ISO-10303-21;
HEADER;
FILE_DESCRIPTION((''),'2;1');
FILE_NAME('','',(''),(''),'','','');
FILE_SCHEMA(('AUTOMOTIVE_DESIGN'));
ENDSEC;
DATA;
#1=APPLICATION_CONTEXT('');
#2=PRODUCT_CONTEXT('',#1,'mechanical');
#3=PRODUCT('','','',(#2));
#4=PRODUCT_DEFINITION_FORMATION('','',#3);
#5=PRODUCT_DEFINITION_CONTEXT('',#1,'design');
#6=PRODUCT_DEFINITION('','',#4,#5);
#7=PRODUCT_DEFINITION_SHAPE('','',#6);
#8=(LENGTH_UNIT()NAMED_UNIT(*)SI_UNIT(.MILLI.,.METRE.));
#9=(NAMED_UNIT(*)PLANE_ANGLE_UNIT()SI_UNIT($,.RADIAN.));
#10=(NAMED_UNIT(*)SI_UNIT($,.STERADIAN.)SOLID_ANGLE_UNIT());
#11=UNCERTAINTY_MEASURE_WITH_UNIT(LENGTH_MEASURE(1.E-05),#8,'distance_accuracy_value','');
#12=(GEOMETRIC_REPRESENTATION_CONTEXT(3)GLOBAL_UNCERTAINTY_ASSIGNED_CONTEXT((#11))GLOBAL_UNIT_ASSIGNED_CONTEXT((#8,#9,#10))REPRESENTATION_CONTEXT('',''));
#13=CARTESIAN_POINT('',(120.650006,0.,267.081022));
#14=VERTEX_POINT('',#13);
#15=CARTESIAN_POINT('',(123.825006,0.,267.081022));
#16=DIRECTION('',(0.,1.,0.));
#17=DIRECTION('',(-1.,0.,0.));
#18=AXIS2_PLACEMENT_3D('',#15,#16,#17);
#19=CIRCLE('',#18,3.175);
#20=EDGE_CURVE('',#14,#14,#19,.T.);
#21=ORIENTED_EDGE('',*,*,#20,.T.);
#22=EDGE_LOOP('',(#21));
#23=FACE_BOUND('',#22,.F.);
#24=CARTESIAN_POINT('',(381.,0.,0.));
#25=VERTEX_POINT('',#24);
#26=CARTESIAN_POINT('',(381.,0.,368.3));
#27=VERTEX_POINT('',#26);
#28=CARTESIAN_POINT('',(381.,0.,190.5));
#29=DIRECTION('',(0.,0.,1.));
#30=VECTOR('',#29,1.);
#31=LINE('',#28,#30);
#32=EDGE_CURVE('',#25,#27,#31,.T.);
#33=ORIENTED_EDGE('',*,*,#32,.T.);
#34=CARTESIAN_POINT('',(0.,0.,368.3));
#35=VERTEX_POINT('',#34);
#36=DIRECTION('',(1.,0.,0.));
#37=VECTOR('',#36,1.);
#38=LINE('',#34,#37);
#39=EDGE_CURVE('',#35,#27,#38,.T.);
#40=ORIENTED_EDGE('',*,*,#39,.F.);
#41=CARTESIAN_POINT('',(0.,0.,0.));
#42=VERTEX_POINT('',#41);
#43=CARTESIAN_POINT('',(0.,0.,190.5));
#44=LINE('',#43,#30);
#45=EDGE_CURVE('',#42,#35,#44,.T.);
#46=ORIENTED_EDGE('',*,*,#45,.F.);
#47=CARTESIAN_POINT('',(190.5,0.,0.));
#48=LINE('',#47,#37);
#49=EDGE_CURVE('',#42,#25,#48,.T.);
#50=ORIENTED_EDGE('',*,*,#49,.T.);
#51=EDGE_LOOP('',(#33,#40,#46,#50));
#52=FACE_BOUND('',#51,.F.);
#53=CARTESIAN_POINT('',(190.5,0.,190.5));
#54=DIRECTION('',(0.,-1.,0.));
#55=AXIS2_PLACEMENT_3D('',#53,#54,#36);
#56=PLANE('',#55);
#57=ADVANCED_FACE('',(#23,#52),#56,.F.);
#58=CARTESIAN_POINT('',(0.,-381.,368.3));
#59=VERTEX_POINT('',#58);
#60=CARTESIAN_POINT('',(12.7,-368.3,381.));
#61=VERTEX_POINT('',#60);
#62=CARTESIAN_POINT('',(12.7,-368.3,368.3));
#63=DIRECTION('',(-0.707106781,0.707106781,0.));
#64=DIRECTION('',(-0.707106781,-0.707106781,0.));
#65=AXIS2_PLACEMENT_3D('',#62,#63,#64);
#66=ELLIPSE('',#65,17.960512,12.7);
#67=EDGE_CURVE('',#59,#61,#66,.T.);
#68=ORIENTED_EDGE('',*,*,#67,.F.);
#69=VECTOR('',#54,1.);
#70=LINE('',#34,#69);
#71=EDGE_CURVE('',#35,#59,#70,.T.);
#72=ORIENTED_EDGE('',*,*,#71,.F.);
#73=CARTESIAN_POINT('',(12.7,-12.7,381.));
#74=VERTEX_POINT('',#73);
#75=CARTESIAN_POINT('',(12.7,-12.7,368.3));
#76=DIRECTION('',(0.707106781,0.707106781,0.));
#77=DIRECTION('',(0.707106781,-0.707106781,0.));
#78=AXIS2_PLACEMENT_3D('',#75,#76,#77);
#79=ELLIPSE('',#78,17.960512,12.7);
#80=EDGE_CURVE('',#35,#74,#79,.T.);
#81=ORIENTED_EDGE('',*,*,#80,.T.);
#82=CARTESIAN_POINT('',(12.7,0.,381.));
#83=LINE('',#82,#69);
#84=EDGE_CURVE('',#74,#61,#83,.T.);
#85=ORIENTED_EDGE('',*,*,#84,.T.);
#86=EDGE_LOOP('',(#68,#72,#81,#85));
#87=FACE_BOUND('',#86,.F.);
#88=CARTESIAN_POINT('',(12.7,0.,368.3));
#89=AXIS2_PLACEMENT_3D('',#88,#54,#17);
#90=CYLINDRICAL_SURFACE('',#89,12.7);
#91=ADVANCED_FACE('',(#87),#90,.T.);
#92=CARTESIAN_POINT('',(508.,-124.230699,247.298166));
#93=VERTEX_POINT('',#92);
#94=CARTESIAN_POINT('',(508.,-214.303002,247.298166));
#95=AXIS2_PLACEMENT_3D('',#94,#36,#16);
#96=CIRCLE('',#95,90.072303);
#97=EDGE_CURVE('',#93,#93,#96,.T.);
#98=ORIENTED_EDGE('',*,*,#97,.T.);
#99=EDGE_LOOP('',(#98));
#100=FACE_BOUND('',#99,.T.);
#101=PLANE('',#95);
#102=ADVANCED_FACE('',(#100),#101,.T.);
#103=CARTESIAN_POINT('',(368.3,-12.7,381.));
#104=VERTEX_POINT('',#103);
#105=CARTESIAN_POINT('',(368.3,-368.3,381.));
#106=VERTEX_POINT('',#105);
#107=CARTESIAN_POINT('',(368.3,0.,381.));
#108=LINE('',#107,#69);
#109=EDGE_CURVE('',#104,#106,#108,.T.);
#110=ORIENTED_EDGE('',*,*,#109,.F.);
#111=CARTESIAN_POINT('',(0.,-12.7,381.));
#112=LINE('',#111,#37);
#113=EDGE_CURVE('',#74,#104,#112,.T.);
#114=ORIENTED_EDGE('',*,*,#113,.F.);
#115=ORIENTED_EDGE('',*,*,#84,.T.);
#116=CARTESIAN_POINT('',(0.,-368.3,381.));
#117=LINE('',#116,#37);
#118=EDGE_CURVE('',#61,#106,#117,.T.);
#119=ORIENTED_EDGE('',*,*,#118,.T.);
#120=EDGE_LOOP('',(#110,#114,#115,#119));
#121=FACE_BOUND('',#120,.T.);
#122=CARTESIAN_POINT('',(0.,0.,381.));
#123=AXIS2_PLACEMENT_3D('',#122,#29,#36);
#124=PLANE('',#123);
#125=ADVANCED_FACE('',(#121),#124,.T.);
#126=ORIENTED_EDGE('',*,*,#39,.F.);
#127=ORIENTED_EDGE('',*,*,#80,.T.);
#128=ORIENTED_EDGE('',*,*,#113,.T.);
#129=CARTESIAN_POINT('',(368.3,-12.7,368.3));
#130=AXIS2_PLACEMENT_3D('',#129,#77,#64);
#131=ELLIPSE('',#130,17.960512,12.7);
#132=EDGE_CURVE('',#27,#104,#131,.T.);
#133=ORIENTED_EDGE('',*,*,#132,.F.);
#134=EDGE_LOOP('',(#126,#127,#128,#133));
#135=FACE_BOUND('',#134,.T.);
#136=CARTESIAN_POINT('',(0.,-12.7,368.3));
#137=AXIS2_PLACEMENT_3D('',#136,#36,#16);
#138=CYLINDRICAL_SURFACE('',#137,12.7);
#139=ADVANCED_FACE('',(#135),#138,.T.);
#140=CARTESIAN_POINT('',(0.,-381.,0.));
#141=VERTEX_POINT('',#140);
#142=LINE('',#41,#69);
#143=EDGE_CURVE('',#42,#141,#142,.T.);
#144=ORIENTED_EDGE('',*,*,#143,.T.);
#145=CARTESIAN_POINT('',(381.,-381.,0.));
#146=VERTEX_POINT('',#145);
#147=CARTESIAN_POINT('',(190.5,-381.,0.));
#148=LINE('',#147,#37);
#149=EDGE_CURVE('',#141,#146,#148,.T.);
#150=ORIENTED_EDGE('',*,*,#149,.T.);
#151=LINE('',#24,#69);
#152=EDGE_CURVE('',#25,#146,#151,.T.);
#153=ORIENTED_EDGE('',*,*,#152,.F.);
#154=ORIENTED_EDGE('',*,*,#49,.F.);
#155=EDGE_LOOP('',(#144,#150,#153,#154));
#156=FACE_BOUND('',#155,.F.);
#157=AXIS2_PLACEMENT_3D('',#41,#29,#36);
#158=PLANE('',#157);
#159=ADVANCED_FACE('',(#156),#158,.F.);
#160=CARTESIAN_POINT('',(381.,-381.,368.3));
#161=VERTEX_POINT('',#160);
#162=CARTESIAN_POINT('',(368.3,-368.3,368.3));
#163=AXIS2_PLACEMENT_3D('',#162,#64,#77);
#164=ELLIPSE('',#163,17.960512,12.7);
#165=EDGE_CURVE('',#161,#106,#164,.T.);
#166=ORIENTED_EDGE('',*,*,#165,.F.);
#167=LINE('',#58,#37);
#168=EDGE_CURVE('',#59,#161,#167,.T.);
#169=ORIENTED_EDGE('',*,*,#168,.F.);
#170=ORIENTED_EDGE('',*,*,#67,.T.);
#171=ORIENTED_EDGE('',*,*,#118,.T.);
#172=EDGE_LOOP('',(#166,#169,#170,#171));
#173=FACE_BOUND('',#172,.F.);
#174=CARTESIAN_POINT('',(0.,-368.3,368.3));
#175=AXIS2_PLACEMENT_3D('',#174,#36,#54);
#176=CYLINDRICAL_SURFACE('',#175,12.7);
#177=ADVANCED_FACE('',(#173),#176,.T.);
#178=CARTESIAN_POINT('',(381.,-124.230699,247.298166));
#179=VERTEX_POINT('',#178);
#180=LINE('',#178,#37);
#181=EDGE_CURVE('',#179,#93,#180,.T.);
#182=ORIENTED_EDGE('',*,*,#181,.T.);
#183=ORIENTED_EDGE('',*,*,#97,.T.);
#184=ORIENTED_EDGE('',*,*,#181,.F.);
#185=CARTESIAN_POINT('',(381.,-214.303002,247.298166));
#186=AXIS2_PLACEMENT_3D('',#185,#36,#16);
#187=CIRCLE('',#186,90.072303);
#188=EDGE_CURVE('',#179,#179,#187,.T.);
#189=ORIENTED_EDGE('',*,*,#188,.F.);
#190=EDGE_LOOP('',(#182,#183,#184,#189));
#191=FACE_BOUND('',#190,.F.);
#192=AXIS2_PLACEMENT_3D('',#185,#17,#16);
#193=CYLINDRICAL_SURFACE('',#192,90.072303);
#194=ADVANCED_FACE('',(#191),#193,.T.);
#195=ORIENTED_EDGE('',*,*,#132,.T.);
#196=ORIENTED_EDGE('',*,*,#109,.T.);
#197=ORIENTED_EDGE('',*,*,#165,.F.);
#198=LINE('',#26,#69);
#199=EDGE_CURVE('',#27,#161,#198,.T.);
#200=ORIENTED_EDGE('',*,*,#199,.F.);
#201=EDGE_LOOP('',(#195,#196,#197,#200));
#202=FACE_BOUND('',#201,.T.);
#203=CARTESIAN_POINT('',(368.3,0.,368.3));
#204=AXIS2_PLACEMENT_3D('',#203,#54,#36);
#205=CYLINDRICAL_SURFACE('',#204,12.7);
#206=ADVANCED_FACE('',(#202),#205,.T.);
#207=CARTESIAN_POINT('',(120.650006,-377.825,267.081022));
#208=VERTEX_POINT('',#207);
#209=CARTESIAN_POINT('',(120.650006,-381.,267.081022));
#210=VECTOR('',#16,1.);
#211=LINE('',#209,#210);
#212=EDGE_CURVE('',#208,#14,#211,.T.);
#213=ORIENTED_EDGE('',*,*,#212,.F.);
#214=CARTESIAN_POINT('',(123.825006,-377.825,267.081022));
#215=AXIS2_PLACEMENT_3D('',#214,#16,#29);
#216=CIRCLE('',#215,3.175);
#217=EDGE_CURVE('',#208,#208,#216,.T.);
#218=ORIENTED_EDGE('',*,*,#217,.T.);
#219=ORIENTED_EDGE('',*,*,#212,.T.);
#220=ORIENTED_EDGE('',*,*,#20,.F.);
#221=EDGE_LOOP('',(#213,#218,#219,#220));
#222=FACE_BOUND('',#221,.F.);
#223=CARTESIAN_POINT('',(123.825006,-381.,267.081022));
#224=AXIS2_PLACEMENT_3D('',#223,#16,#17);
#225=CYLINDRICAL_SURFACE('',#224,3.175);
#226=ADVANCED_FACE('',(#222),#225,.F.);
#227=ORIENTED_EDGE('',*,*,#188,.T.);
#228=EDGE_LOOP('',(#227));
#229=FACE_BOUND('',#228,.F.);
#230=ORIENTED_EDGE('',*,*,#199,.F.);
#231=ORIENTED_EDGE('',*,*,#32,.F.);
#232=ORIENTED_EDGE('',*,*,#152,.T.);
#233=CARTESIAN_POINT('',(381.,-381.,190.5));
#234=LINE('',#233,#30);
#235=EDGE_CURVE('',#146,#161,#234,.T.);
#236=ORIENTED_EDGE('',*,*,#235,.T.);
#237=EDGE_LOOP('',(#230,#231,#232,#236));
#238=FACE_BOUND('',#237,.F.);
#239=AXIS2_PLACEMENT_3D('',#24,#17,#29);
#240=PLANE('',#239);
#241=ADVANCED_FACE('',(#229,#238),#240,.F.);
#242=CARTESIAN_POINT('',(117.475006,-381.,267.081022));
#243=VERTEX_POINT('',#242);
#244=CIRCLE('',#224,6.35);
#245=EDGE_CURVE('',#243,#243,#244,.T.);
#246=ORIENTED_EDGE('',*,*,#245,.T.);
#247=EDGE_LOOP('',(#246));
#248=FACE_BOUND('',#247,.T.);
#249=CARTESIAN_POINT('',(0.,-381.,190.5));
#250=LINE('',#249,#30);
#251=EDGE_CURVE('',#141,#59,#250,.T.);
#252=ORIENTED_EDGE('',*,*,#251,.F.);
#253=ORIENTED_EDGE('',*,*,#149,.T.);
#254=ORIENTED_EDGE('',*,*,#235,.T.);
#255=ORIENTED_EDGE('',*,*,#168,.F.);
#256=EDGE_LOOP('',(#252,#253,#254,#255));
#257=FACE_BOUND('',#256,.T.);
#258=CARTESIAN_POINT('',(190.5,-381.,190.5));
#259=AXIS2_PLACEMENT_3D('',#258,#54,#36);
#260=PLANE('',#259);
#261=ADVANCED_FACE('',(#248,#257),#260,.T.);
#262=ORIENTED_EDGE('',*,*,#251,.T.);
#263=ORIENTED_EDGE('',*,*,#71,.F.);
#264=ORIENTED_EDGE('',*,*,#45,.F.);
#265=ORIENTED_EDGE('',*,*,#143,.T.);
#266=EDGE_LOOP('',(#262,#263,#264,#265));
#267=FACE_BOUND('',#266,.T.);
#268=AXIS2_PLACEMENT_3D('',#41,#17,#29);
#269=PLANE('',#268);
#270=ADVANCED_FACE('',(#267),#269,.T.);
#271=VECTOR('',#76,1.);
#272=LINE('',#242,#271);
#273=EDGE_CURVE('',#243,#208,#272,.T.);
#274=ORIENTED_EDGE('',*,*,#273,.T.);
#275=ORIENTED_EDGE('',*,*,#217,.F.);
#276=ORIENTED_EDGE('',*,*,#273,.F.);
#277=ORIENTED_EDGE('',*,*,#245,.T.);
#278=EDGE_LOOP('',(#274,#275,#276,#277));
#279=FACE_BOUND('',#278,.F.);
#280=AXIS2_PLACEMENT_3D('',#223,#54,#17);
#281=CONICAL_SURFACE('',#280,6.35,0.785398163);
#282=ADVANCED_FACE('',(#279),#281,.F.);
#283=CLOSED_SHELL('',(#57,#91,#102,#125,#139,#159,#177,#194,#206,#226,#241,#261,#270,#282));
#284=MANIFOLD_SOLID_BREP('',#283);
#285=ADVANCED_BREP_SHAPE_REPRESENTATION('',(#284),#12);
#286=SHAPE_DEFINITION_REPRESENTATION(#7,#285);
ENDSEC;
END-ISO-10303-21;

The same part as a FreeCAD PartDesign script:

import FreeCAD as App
import Part
import Sketcher

V = App.Vector
Q = App.Units.Quantity


def edges_at(feature, points):
    """Names of the edges that pass closest to the given points."""
    edges = feature.Shape.Edges
    near = lambda p: min(range(len(edges)), key=lambda i: edges[i].distToShape(Part.Vertex(*p))[0])
    return sorted({f"Edge{near(p) + 1}" for p in points})

doc = App.newDocument("Part")
params = doc.addObject("Spreadsheet::Sheet", "Params")
for row, (alias, value) in enumerate([
    ("sketch1_width", "15 in"),
    ("pad1_length", "15 in"),
    ("sketch2_diameter", "0.25 in"),
    ("hole_diameter", "0.25 in"),
    ("hole_csink_diameter", "0.5 in"),
    ("fillet_radius", "0.5 in"),
    ("pad2_length", "5 in"),
], start=1):
    params.set(f"A{row}", alias)
    params.set(f"B{row}", "=" + value)
    params.setAlias(f"B{row}", alias)

body = doc.addObject("PartDesign::Body", "Body")

# Sketch on XZ plane
sketch1 = body.newObject("Sketcher::SketchObject", "Sketch")
sketch1.AttachmentSupport = (doc.getObject("XZ_Plane"), [""])
sketch1.MapMode = "FlatFace"
sketch1.addGeometry(Part.LineSegment(V(0, 381, 0), V(0, 0, 0)), False)
sketch1.addGeometry(Part.LineSegment(V(0, 0, 0), V(381, 0, 0)), False)
sketch1.addGeometry(Part.LineSegment(V(381, 0, 0), V(381, 381, 0)), False)
sketch1.addGeometry(Part.LineSegment(V(381, 381, 0), V(0, 381, 0)), False)
sketch1.addConstraint(Sketcher.Constraint("Coincident", 0, 2, 1, 1))
sketch1.addConstraint(Sketcher.Constraint("Coincident", 1, 2, 2, 1))
sketch1.addConstraint(Sketcher.Constraint("Coincident", 2, 2, 3, 1))
sketch1.addConstraint(Sketcher.Constraint("Coincident", 3, 2, 0, 1))
sketch1.addConstraint(Sketcher.Constraint("Vertical", 0))
sketch1.addConstraint(Sketcher.Constraint("Horizontal", 1))
sketch1.addConstraint(Sketcher.Constraint("Vertical", 2))
sketch1.addConstraint(Sketcher.Constraint("Horizontal", 3))
sketch1.addConstraint(Sketcher.Constraint("Coincident", 0, 2, -1, 1))
sketch1.addConstraint(Sketcher.Constraint("Equal", 3, 0))
sketch1.addConstraint(Sketcher.Constraint("DistanceX", 1, 1, 1, 2, Q("15 in")))
sketch1.setExpression("Constraints[10]", "Params.sketch1_width")
pad1 = body.newObject("PartDesign::Pad", "Pad")
pad1.Profile = sketch1
pad1.setExpression("Length", "Params.pad1_length")

# Sketch on XZ plane
sketch2 = body.newObject("Sketcher::SketchObject", "Sketch001")
sketch2.AttachmentSupport = (doc.getObject("XZ_Plane"), [""])
sketch2.MapMode = "FlatFace"
sketch2.AttachmentOffset = App.Placement(V(0, 0, 15 * 25.4), App.Rotation())
sketch2.addGeometry(Part.Circle(V(123.8, 267.1, 0), V(0, 0, 1), 3.2), False)
sketch2.addConstraint(Sketcher.Constraint("Diameter", 0, Q("0.25 in")))
sketch2.addConstraint(Sketcher.Constraint("DistanceY", -1, 1, 0, 3, 267.081022))
sketch2.addConstraint(Sketcher.Constraint("DistanceX", -1, 1, 0, 3, 123.825006))
sketch2.setExpression("Constraints[0]", "Params.sketch2_diameter")
doc.recompute()
hole = body.newObject("PartDesign::Hole", "Hole")
hole.Profile = sketch2
hole.ThreadType = "None"
hole.setExpression("Diameter", "Params.hole_diameter")
hole.DepthType = "ThroughAll"
hole.HoleCutType = "Countersink"
hole.setExpression("HoleCutDiameter", "Params.hole_csink_diameter")
hole.HoleCutCountersinkAngle = 90
doc.recompute()

fillet = body.newObject("PartDesign::Fillet", "Fillet")
fillet.Base = (hole, edges_at(hole, [
    (381, -190.5, 381),
    (0, -190.5, 381),
    (190.5, 0, 381),
    (190.5, -381, 381),
]))
fillet.setExpression("Radius", "Params.fillet_radius")

# Sketch on YZ plane
sketch3 = body.newObject("Sketcher::SketchObject", "Sketch002")
sketch3.AttachmentSupport = (doc.getObject("YZ_Plane"), [""])
sketch3.MapMode = "FlatFace"
sketch3.AttachmentOffset = App.Placement(V(0, 0, 15 * 25.4), App.Rotation())
sketch3.addGeometry(Part.Circle(V(-214, 247, 0), V(0, 0, 1), 90), False)
sketch3.addConstraint(Sketcher.Constraint("Diameter", 0, 180.144606))
sketch3.addConstraint(Sketcher.Constraint("DistanceX", 0, 3, -1, 1, 214.303002))
sketch3.addConstraint(Sketcher.Constraint("DistanceY", -1, 1, 0, 3, 247.298166))
pad2 = body.newObject("PartDesign::Pad", "Pad001")
pad2.Profile = sketch3
pad2.setExpression("Length", "Params.pad2_length")

doc.recompute()
